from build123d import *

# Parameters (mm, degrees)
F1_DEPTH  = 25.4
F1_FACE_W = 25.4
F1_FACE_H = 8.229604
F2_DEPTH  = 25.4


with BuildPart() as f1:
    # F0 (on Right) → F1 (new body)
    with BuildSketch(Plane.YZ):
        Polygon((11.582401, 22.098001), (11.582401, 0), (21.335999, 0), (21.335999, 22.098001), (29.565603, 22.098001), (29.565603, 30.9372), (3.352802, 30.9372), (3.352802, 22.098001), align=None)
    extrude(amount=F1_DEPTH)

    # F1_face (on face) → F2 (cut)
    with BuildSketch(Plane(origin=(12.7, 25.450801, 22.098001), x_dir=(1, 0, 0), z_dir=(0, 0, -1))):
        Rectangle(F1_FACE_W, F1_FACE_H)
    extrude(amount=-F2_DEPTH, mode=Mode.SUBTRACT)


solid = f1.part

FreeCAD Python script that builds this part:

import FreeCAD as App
import Part
import Sketcher
Q = App.Units.Quantity


def add_polygon(sketch, points):
    """Adds a closed chain of lines whose ends are joined by coincident constraints."""
    first, n = sketch.GeometryCount, len(points)
    for a, b in zip(points, points[1:] + points[:1]):
        sketch.addGeometry(Part.LineSegment(App.Vector(*a, 0), App.Vector(*b, 0)), False)
    for i in range(n):
        sketch.addConstraint(Sketcher.Constraint("Coincident", first + i, 2, first + (i + 1) % n, 1))

doc = App.newDocument("Part")
body = doc.addObject("PartDesign::Body", "Body")

# Sketch on YZ plane
sketch1 = body.newObject("Sketcher::SketchObject", "Sketch")
sketch1.AttachmentSupport = (doc.getObject("YZ_Plane"), [""])
sketch1.MapMode = "FlatFace"
add_polygon(sketch1, [(12, 22), (12, 0), (21, 0), (21, 22), (30, 22), (30, 31), (3, 31), (3, 22)])  # lines 0-7
sketch1.addConstraint([
    Sketcher.Constraint("Vertical", 0),
    Sketcher.Constraint("Horizontal", 1),
    Sketcher.Constraint("Vertical", 2),
    Sketcher.Constraint("Horizontal", 3),
    Sketcher.Constraint("Vertical", 4),
    Sketcher.Constraint("Horizontal", 5),
    Sketcher.Constraint("Vertical", 6),
    Sketcher.Constraint("Horizontal", 7),
    Sketcher.Constraint("PointOnObject", 0, 2, -1),
    Sketcher.Constraint("Horizontal", 3, 2, 6, 2),
    Sketcher.Constraint("DistanceY", 0, 2, 0, 1, Q("0.87 in")),
    Sketcher.Constraint("DistanceX", 1, 1, 1, 2, Q("0.3839999 in")),
    Sketcher.Constraint("DistanceX", 3, 1, 3, 2, Q("0.3240002 in")),
    Sketcher.Constraint("DistanceX", 5, 2, 5, 1, Q("1.032 in")),
    Sketcher.Constraint("DistanceY", 4, 1, 4, 2, Q("0.348 in")),
    Sketcher.Constraint("DistanceX", -1, 1, 1, 2, Q("0.84 in")),
])
pad1 = body.newObject("PartDesign::Pad", "Pad")
pad1.Profile = sketch1
pad1.Length = Q("1 in")

# Sketch on XY plane
sketch2 = body.newObject("Sketcher::SketchObject", "Sketch001")
sketch2.AttachmentSupport = (doc.getObject("XY_Plane"), [""])
sketch2.MapMode = "FlatFace"
sketch2.AttachmentOffset = App.Placement(App.Vector(0, 0, 0.87 * 25.4), App.Rotation())
add_polygon(sketch2, [(0, 21), (0, 30), (25, 30), (25, 21)])  # lines 0-3
sketch2.addConstraint([
    Sketcher.Constraint("Vertical", 0),
    Sketcher.Constraint("Horizontal", 1),
    Sketcher.Constraint("Vertical", 2),
    Sketcher.Constraint("Horizontal", 3),
    Sketcher.Constraint("PointOnObject", 0, 2, -2),
    Sketcher.Constraint("DistanceX", 1, 1, 1, 2, Q("1 in")),
    Sketcher.Constraint("DistanceY", 0, 1, 0, 2, Q("0.3240002 in")),
    Sketcher.Constraint("DistanceY", -1, 1, 2, 2, Q("0.84 in")),
])
pocket1 = body.newObject("PartDesign::Pocket", "Pocket")
pocket1.Profile = sketch2
pocket1.Length = Q("1 in")
pocket1.Reversed = True

doc.recompute()
